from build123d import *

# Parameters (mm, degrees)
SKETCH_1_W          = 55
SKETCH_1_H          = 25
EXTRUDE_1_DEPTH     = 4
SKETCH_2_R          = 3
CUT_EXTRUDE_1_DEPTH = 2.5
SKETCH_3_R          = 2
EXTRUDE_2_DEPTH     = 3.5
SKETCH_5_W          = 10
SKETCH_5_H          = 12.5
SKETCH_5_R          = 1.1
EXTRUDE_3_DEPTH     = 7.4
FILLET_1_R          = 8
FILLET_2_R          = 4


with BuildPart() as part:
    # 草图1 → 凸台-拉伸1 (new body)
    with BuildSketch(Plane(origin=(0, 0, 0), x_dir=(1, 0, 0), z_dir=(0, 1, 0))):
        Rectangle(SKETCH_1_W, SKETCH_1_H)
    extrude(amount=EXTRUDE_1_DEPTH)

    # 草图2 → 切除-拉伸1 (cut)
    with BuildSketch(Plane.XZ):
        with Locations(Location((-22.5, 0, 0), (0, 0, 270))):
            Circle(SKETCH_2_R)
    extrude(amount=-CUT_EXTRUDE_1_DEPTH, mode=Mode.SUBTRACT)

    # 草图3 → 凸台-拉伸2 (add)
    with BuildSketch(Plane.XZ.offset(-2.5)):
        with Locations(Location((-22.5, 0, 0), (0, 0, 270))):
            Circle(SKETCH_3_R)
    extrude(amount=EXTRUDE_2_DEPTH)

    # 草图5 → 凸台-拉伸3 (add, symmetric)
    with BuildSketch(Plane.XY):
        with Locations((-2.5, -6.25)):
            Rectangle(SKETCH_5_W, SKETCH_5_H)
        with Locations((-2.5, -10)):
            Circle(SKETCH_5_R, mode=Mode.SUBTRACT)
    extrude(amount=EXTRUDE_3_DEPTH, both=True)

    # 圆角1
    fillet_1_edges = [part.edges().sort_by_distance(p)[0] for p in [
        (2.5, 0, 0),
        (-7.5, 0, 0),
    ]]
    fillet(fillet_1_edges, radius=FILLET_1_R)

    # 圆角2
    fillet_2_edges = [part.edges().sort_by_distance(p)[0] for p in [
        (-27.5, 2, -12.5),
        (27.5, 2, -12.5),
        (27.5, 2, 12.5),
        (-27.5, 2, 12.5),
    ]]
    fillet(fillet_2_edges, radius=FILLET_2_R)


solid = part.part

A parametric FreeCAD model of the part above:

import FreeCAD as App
import Part
import Sketcher


def edges_at(feature, points):
    """Names of the edges that pass closest to the given points."""
    edges = feature.Shape.Edges
    near = lambda p: min(range(len(edges)), key=lambda i: edges[i].distToShape(Part.Vertex(*p))[0])
    return sorted({f"Edge{near(p) + 1}" for p in points})

doc = App.newDocument("Part")
body = doc.addObject("PartDesign::Body", "Body")

sketch1 = doc.addObject("Sketcher::SketchObject", "Sketch")
body.addObject(sketch1)
sketch1.AttachmentSupport = (doc.XZ_Plane, [""])
sketch1.MapMode = "FlatFace"
sketch1.addGeometry([
    Part.LineSegment(App.Vector(-28, -12, 0), App.Vector(-28, 12, 0)),
    Part.LineSegment(App.Vector(-28, 12, 0), App.Vector(28, 12, 0)),
    Part.LineSegment(App.Vector(28, 12, 0), App.Vector(28, -12, 0)),
    Part.LineSegment(App.Vector(28, -12, 0), App.Vector(-28, -12, 0)),
], False)
sketch1.addConstraint([
    Sketcher.Constraint("Coincident", 0, 2, 1, 1),
    Sketcher.Constraint("Coincident", 1, 2, 2, 1),
    Sketcher.Constraint("Coincident", 2, 2, 3, 1),
    Sketcher.Constraint("Coincident", 3, 2, 0, 1),
    Sketcher.Constraint("Vertical", 0),
    Sketcher.Constraint("Horizontal", 1),
    Sketcher.Constraint("Vertical", 2),
    Sketcher.Constraint("Horizontal", 3),
    Sketcher.Constraint("Symmetric", 0, 2, 2, 2, -1, 1),
    Sketcher.Constraint("DistanceX", 1, 1, 1, 2, 55.0),
    Sketcher.Constraint("DistanceY", 0, 1, 0, 2, 25.0),
])
pad1 = doc.addObject("PartDesign::Pad", "Pad")
body.addObject(pad1)
pad1.Profile = sketch1
pad1.Length = 4
pad1.Reversed = True

sketch2 = doc.addObject("Sketcher::SketchObject", "Sketch001")
body.addObject(sketch2)
sketch2.AttachmentSupport = (doc.XZ_Plane, [""])
sketch2.MapMode = "FlatFace"
sketch2.addGeometry(Part.Circle(App.Vector(-22.5, 0, 0), App.Vector(0, 0, 1), 3), False)
sketch2.addConstraint([
    Sketcher.Constraint("PointOnObject", 0, 3, -1),
    Sketcher.Constraint("Diameter", 0, 6.0),
    Sketcher.Constraint("DistanceX", 0, 3, -1, 1, 22.5),
])
pocket1 = doc.addObject("PartDesign::Pocket", "Pocket")
body.addObject(pocket1)
pocket1.Profile = sketch2
pocket1.Length = 2.5

sketch3 = doc.addObject("Sketcher::SketchObject", "Sketch002")
body.addObject(sketch3)
sketch3.AttachmentSupport = (doc.XZ_Plane, [""])
sketch3.MapMode = "FlatFace"
sketch3.AttachmentOffset = App.Placement(App.Vector(0, 0, -2.5), App.Rotation())
sketch3.addGeometry(Part.Circle(App.Vector(-22.5, 0, 0), App.Vector(0, 0, 1), 2), False)
sketch3.addConstraint([
    Sketcher.Constraint("PointOnObject", 0, 3, -1),
    Sketcher.Constraint("Diameter", 0, 4.0),
    Sketcher.Constraint("DistanceX", 0, 3, -1, 1, 22.5),
])
pad2 = doc.addObject("PartDesign::Pad", "Pad001")
body.addObject(pad2)
pad2.Profile = sketch3
pad2.Length = 3.5

sketch4 = doc.addObject("Sketcher::SketchObject", "Sketch003")
body.addObject(sketch4)
sketch4.AttachmentSupport = (doc.XY_Plane, [""])
sketch4.MapMode = "FlatFace"
sketch4.addGeometry([
    Part.LineSegment(App.Vector(-7.5, 0, 0), App.Vector(-7.5, -12.5, 0)),
    Part.LineSegment(App.Vector(-7.5, -12.5, 0), App.Vector(2.5, -12.5, 0)),
    Part.LineSegment(App.Vector(2.5, -12.5, 0), App.Vector(2.5, 0, 0)),
    Part.LineSegment(App.Vector(2.5, 0, 0), App.Vector(-7.5, 0, 0)),
    Part.Circle(App.Vector(-2.5, -10, 0), App.Vector(0, 0, 1), 1.1),
], False)
sketch4.addConstraint([
    Sketcher.Constraint("Coincident", 0, 2, 1, 1),
    Sketcher.Constraint("Coincident", 1, 2, 2, 1),
    Sketcher.Constraint("Coincident", 2, 2, 3, 1),
    Sketcher.Constraint("Coincident", 3, 2, 0, 1),
    Sketcher.Constraint("Vertical", 0),
    Sketcher.Constraint("Horizontal", 1),
    Sketcher.Constraint("Vertical", 2),
    Sketcher.Constraint("Horizontal", 3),
    Sketcher.Constraint("PointOnObject", 2, 2, -1),
    Sketcher.Constraint("Diameter", 4, 2.2),
    Sketcher.Constraint("DistanceX", 1, 1, 1, 2, 10.0),
    Sketcher.Constraint("DistanceY", 0, 2, 0, 1, 12.5),
    Sketcher.Constraint("DistanceY", 4, 3, -1, 1, 10.0),
    Sketcher.Constraint("DistanceX", 0, 2, 4, 3, 5.0),
    Sketcher.Constraint("DistanceX", 4, 3, -1, 1, 2.5),
])
pad3 = doc.addObject("PartDesign::Pad", "Pad002")
body.addObject(pad3)
pad3.Profile = sketch4
pad3.Length = 14.8
pad3.Midplane = True
doc.recompute()

fillet = doc.addObject("PartDesign::Fillet", "Fillet")
body.addObject(fillet)
fillet.Base = (pad3, edges_at(pad3, [(2.5, 0, 0), (-7.5, 0, 0)]))
fillet.Radius = 8
doc.recompute()

fillet2 = doc.addObject("PartDesign::Fillet", "Fillet001")
body.addObject(fillet2)
fillet2.Base = (fillet, edges_at(fillet, [
    (-27.5, 2, -12.5),
    (27.5, 2, -12.5),
    (27.5, 2, 12.5),
    (-27.5, 2, 12.5),
]))
fillet2.Radius = 4

doc.recompute()
